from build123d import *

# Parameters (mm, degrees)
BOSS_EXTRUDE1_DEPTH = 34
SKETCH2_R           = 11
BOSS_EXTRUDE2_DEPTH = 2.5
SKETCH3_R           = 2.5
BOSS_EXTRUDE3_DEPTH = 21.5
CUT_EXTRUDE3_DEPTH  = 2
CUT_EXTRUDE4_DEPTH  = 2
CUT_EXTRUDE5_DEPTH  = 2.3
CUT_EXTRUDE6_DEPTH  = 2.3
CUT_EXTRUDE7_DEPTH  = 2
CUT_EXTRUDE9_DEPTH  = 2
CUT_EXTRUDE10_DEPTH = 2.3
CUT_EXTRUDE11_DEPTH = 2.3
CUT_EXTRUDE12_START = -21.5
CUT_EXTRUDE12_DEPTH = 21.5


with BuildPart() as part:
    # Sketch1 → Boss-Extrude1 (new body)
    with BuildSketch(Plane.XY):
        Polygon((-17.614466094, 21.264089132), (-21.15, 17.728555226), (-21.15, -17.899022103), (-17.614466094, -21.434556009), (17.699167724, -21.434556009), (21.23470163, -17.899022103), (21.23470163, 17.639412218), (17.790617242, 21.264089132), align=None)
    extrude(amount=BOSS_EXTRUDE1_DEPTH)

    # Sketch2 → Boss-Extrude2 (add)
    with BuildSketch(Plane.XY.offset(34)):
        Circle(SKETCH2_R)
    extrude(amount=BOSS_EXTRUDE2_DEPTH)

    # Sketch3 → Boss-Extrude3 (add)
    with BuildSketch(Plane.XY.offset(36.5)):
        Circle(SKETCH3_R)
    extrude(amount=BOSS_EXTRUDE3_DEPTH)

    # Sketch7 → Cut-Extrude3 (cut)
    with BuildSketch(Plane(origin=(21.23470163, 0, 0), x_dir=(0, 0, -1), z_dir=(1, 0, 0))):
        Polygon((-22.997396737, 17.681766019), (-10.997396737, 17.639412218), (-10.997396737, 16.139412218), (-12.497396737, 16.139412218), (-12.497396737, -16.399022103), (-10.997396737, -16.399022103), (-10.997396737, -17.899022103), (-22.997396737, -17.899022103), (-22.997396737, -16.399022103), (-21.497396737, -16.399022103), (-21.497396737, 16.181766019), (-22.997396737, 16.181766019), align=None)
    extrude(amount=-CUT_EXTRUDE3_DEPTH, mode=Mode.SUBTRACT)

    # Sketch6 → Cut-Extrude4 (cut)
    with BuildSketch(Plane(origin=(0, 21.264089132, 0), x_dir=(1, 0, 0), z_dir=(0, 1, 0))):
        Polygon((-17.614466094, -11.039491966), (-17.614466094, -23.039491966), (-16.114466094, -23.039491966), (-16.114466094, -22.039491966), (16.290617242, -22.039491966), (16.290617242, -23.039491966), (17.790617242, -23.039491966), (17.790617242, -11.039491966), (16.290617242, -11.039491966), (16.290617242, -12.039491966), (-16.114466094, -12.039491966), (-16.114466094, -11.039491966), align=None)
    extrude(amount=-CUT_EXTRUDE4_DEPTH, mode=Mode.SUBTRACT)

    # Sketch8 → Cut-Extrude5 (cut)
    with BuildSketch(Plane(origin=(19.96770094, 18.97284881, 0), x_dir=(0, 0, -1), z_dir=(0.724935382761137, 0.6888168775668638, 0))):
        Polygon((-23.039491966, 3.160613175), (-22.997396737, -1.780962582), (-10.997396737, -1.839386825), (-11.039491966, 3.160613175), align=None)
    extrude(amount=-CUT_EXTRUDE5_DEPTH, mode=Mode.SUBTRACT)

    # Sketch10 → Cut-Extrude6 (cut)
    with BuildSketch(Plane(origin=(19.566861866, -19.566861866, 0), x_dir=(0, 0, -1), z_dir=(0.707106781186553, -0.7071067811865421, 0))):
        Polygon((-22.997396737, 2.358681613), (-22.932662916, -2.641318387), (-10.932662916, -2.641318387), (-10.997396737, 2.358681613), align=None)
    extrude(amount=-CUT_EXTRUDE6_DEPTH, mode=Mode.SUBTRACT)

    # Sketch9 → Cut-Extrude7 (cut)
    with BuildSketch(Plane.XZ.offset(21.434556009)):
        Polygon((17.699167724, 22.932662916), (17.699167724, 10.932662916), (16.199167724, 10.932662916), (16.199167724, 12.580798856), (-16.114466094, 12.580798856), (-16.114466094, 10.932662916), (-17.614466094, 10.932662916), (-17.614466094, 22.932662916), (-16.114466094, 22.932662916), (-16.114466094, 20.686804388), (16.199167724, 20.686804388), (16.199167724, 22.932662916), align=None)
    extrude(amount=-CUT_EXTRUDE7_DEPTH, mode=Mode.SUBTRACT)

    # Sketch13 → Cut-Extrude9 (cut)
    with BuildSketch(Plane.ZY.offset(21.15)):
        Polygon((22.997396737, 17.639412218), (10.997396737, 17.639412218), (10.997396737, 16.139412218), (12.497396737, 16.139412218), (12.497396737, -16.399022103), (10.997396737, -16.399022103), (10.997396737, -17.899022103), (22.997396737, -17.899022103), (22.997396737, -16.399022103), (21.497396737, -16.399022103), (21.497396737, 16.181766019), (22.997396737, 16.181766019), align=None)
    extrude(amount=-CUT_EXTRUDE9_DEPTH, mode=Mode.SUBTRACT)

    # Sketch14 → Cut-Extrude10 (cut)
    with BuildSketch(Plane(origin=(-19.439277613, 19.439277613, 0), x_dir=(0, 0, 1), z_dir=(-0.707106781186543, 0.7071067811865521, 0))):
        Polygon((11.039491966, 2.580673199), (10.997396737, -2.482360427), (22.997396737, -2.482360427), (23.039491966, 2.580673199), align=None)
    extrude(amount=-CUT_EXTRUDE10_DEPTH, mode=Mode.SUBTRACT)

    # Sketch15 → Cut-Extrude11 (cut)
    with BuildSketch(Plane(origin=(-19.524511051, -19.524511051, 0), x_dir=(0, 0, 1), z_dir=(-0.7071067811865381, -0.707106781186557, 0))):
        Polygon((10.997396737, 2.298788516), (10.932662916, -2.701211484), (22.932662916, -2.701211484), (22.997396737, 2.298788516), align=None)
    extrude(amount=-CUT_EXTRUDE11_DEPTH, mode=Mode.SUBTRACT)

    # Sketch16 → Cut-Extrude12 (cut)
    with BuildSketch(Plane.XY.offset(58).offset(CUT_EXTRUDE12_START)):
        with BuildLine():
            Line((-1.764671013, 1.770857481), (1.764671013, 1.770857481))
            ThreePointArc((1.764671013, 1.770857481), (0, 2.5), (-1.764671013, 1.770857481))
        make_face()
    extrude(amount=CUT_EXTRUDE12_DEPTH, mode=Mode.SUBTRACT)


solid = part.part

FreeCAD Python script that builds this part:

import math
import FreeCAD as App
import Part
import Sketcher

V = App.Vector
Q = App.Units.Quantity

doc = App.newDocument("Part")
params = doc.addObject("Spreadsheet::Sheet", "Params")
for row, (alias, value) in enumerate([
    ("sketch1_length", "5 mm"),
    ("pad1_length", "34 mm"),
    ("sketch2_diameter", "22 mm"),
    ("pad2_length", "2.5 mm"),
    ("sketch3_diameter", "5 mm"),
    ("pad3_length", "21.5 mm"),
    ("sketch4_height", "12 mm"),
    ("sketch4_width", "1.5 mm"),
    ("pocket1_length", "2 mm"),
    ("sketch5_height", "12 mm"),
    ("sketch5_height2", "1 mm"),
    ("sketch5_width", "1.5 mm"),
    ("pocket2_length", "2 mm"),
    ("sketch6_width", "12 mm"),
    ("pocket3_length", "2.3 mm"),
    ("sketch7_width", "12 mm"),
    ("pocket4_length", "2.3 mm"),
    ("sketch8_height", "12 mm"),
    ("sketch8_width", "1.5 mm"),
    ("pocket5_length", "2 mm"),
    ("sketch9_height", "12 mm"),
    ("sketch9_width", "1.5 mm"),
    ("pocket6_length", "2 mm"),
    ("sketch10_width", "12 mm"),
    ("pocket7_length", "2.3 mm"),
    ("sketch11_width", "12 mm"),
    ("pocket8_length", "2.3 mm"),
    ("sketch12_radius", "2.5 mm"),
    ("pocket9_length", "21.5 mm"),
], start=1):
    params.set(f"A{row}", alias)
    params.set(f"B{row}", "=" + value)
    params.setAlias(f"B{row}", alias)

body = doc.addObject("PartDesign::Body", "Body")

# Sketch on XY plane
sketch1 = doc.addObject("Sketcher::SketchObject", "Sketch")
body.addObject(sketch1)
sketch1.AttachmentSupport = (doc.XY_Plane, [""])
sketch1.MapMode = "FlatFace"
sketch1.addGeometry(Part.LineSegment(V(-18, 21, 0), V(-21, 18, 0)), False)
sketch1.addGeometry(Part.LineSegment(V(-21, 18, 0), V(-21, -18, 0)), False)
sketch1.addGeometry(Part.LineSegment(V(-21, -18, 0), V(-18, -21, 0)), False)
sketch1.addGeometry(Part.LineSegment(V(-18, -21, 0), V(18, -21, 0)), False)
sketch1.addGeometry(Part.LineSegment(V(18, -21, 0), V(21, -18, 0)), False)
sketch1.addGeometry(Part.LineSegment(V(21, -18, 0), V(21, 18, 0)), False)
sketch1.addGeometry(Part.LineSegment(V(21, 18, 0), V(18, 21, 0)), False)
sketch1.addGeometry(Part.LineSegment(V(18, 21, 0), V(-18, 21, 0)), False)
sketch1.addConstraint(Sketcher.Constraint("Coincident", 0, 2, 1, 1))
sketch1.addConstraint(Sketcher.Constraint("Coincident", 1, 2, 2, 1))
sketch1.addConstraint(Sketcher.Constraint("Coincident", 2, 2, 3, 1))
sketch1.addConstraint(Sketcher.Constraint("Coincident", 3, 2, 4, 1))
sketch1.addConstraint(Sketcher.Constraint("Coincident", 4, 2, 5, 1))
sketch1.addConstraint(Sketcher.Constraint("Coincident", 5, 2, 6, 1))
sketch1.addConstraint(Sketcher.Constraint("Coincident", 6, 2, 7, 1))
sketch1.addConstraint(Sketcher.Constraint("Coincident", 7, 2, 0, 1))
sketch1.addConstraint(Sketcher.Constraint("Vertical", 1))
sketch1.addConstraint(Sketcher.Constraint("Horizontal", 3))
sketch1.addConstraint(Sketcher.Constraint("Vertical", 5))
sketch1.addConstraint(Sketcher.Constraint("Horizontal", 7))
sketch1.addConstraint(Sketcher.Constraint("Perpendicular", 0, 2))
sketch1.addConstraint(Sketcher.Constraint("Perpendicular", 2, 4))
sketch1.addConstraint(Sketcher.Constraint("Horizontal", 1, 2, 4, 2))
sketch1.addConstraint(Sketcher.Constraint("Vertical", 2, 2, 7, 2))
sketch1.addConstraint(Sketcher.Constraint("Equal", 0, 2))
sketch1.addConstraint(Sketcher.Constraint("Equal", 4, 6))
sketch1.addConstraint(Sketcher.Constraint("Distance", 0, Q("5 mm")))
sketch1.addConstraint(Sketcher.Constraint("DistanceX", 0, 2, -1, 1, Q("21.15 mm")))
sketch1.addConstraint(Sketcher.Constraint("DistanceX", -1, 1, 4, 2, Q("21.234702 mm")))
sketch1.addConstraint(Sketcher.Constraint("DistanceX", 7, 2, 7, 1, Q("35.405083 mm")))
sketch1.addConstraint(Sketcher.Constraint("DistanceY", 1, 2, 1, 1, Q("35.627577 mm")))
sketch1.addConstraint(Sketcher.Constraint("DistanceY", -1, 1, 6, 2, Q("21.264089 mm")))
sketch1.setExpression("Constraints[18]", "Params.sketch1_length")
pad1 = doc.addObject("PartDesign::Pad", "Pad")
body.addObject(pad1)
pad1.Profile = sketch1
pad1.setExpression("Length", "Params.pad1_length")

# Sketch on XY plane
sketch2 = doc.addObject("Sketcher::SketchObject", "Sketch001")
body.addObject(sketch2)
sketch2.AttachmentSupport = (doc.XY_Plane, [""])
sketch2.MapMode = "FlatFace"
sketch2.AttachmentOffset = App.Placement(V(0, 0, 34), App.Rotation())
sketch2.addGeometry(Part.Circle(V(0, 0, 0), V(0, 0, 1), 11), False)
sketch2.addConstraint(Sketcher.Constraint("Coincident", 0, 3, -1, 1))
sketch2.addConstraint(Sketcher.Constraint("Diameter", 0, Q("22 mm")))
sketch2.setExpression("Constraints[1]", "Params.sketch2_diameter")
pad2 = doc.addObject("PartDesign::Pad", "Pad001")
body.addObject(pad2)
pad2.Profile = sketch2
pad2.setExpression("Length", "Params.pad2_length")

# Sketch on XY plane
sketch3 = doc.addObject("Sketcher::SketchObject", "Sketch002")
body.addObject(sketch3)
sketch3.AttachmentSupport = (doc.XY_Plane, [""])
sketch3.MapMode = "FlatFace"
sketch3.AttachmentOffset = App.Placement(V(0, 0, 36.5), App.Rotation())
sketch3.addGeometry(Part.Circle(V(0, 0, 0), V(0, 0, 1), 2.5), False)
sketch3.addConstraint(Sketcher.Constraint("Coincident", 0, 3, -1, 1))
sketch3.addConstraint(Sketcher.Constraint("Diameter", 0, Q("5 mm")))
sketch3.setExpression("Constraints[1]", "Params.sketch3_diameter")
pad3 = doc.addObject("PartDesign::Pad", "Pad002")
body.addObject(pad3)
pad3.Profile = sketch3
pad3.setExpression("Length", "Params.pad3_length")

# Sketch on YZ plane
sketch4 = doc.addObject("Sketcher::SketchObject", "Sketch003")
body.addObject(sketch4)
sketch4.AttachmentSupport = (doc.YZ_Plane, [""])
sketch4.MapMode = "FlatFace"
sketch4.AttachmentOffset = App.Placement(V(0, 0, 21.234702), App.Rotation())
sketch4.addGeometry(Part.LineSegment(V(17.6, 11, 0), V(17.7, 23, 0)), False)
sketch4.addGeometry(Part.LineSegment(V(17.7, 23, 0), V(16.2, 23, 0)), False)
sketch4.addGeometry(Part.LineSegment(V(16.2, 23, 0), V(16.2, 21.5, 0)), False)
sketch4.addGeometry(Part.LineSegment(V(16.2, 21.5, 0), V(-16.4, 21.5, 0)), False)
sketch4.addGeometry(Part.LineSegment(V(-16.4, 21.5, 0), V(-16.4, 23, 0)), False)
sketch4.addGeometry(Part.LineSegment(V(-16.4, 23, 0), V(-17.9, 23, 0)), False)
sketch4.addGeometry(Part.LineSegment(V(-17.9, 23, 0), V(-17.9, 11, 0)), False)
sketch4.addGeometry(Part.LineSegment(V(-17.9, 11, 0), V(-16.4, 11, 0)), False)
sketch4.addGeometry(Part.LineSegment(V(-16.4, 11, 0), V(-16.4, 12.5, 0)), False)
sketch4.addGeometry(Part.LineSegment(V(-16.4, 12.5, 0), V(16.1, 12.5, 0)), False)
sketch4.addGeometry(Part.LineSegment(V(16.1, 12.5, 0), V(16.1, 11, 0)), False)
sketch4.addGeometry(Part.LineSegment(V(16.1, 11, 0), V(17.6, 11, 0)), False)
sketch4.addConstraint(Sketcher.Constraint("Coincident", 0, 2, 1, 1))
sketch4.addConstraint(Sketcher.Constraint("Coincident", 1, 2, 2, 1))
sketch4.addConstraint(Sketcher.Constraint("Coincident", 2, 2, 3, 1))
sketch4.addConstraint(Sketcher.Constraint("Coincident", 3, 2, 4, 1))
sketch4.addConstraint(Sketcher.Constraint("Coincident", 4, 2, 5, 1))
sketch4.addConstraint(Sketcher.Constraint("Coincident", 5, 2, 6, 1))
sketch4.addConstraint(Sketcher.Constraint("Coincident", 6, 2, 7, 1))
sketch4.addConstraint(Sketcher.Constraint("Coincident", 7, 2, 8, 1))
sketch4.addConstraint(Sketcher.Constraint("Coincident", 8, 2, 9, 1))
sketch4.addConstraint(Sketcher.Constraint("Coincident", 9, 2, 10, 1))
sketch4.addConstraint(Sketcher.Constraint("Coincident", 10, 2, 11, 1))
sketch4.addConstraint(Sketcher.Constraint("Coincident", 11, 2, 0, 1))
sketch4.addConstraint(Sketcher.Constraint("Horizontal", 1))
sketch4.addConstraint(Sketcher.Constraint("Vertical", 2))
sketch4.addConstraint(Sketcher.Constraint("Horizontal", 3))
sketch4.addConstraint(Sketcher.Constraint("Vertical", 4))
sketch4.addConstraint(Sketcher.Constraint("Horizontal", 5))
sketch4.addConstraint(Sketcher.Constraint("Vertical", 6))
sketch4.addConstraint(Sketcher.Constraint("Horizontal", 7))
sketch4.addConstraint(Sketcher.Constraint("Vertical", 8))
sketch4.addConstraint(Sketcher.Constraint("Horizontal", 9))
sketch4.addConstraint(Sketcher.Constraint("Vertical", 10))
sketch4.addConstraint(Sketcher.Constraint("Horizontal", 11))
sketch4.addConstraint(Sketcher.Constraint("Horizontal", 1, 2, 4, 2))
sketch4.addConstraint(Sketcher.Constraint("Horizontal", 7, 2, 10, 2))
sketch4.addConstraint(Sketcher.Constraint("Vertical", 4, 2, 7, 2))
sketch4.addConstraint(Sketcher.Constraint("Equal", 1, 5))
sketch4.addConstraint(Sketcher.Constraint("Equal", 7, 11))
sketch4.addConstraint(Sketcher.Constraint("Equal", 11, 2))
sketch4.addConstraint(Sketcher.Constraint("Equal", 4, 8))
sketch4.addConstraint(Sketcher.Constraint("DistanceY", 6, 2, 6, 1, Q("12 mm")))
sketch4.addConstraint(Sketcher.Constraint("DistanceX", 1, 2, 1, 1, Q("1.5 mm")))
sketch4.addConstraint(Sketcher.Constraint("DistanceX", 3, 2, 3, 1, Q("32.580788 mm")))
sketch4.addConstraint(Sketcher.Constraint("DistanceX", 9, 1, 9, 2, Q("32.538434 mm")))
sketch4.addConstraint(Sketcher.Constraint("DistanceX", -1, 1, 0, 2, Q("17.681766 mm")))
sketch4.addConstraint(Sketcher.Constraint("DistanceY", -1, 1, 0, 2, Q("22.997397 mm")))
sketch4.setExpression("Constraints[30]", "Params.sketch4_height")
sketch4.setExpression("Constraints[31]", "Params.sketch4_width")
pocket1 = doc.addObject("PartDesign::Pocket", "Pocket")
body.addObject(pocket1)
pocket1.Profile = sketch4
pocket1.setExpression("Length", "Params.pocket1_length")

# Sketch on XZ plane
sketch5 = doc.addObject("Sketcher::SketchObject", "Sketch004")
body.addObject(sketch5)
sketch5.AttachmentSupport = (doc.XZ_Plane, [""])
sketch5.MapMode = "FlatFace"
sketch5.AttachmentOffset = App.Placement(V(0, 0, -21.264089), App.Rotation())
sketch5.addGeometry(Part.LineSegment(V(-17.6, 11, 0), V(-17.6, 23, 0)), False)
sketch5.addGeometry(Part.LineSegment(V(-17.6, 23, 0), V(-16.1, 23, 0)), False)
sketch5.addGeometry(Part.LineSegment(V(-16.1, 23, 0), V(-16.1, 22, 0)), False)
sketch5.addGeometry(Part.LineSegment(V(-16.1, 22, 0), V(16.3, 22, 0)), False)
sketch5.addGeometry(Part.LineSegment(V(16.3, 22, 0), V(16.3, 23, 0)), False)
sketch5.addGeometry(Part.LineSegment(V(16.3, 23, 0), V(17.8, 23, 0)), False)
sketch5.addGeometry(Part.LineSegment(V(17.8, 23, 0), V(17.8, 11, 0)), False)
sketch5.addGeometry(Part.LineSegment(V(17.8, 11, 0), V(16.3, 11, 0)), False)
sketch5.addGeometry(Part.LineSegment(V(16.3, 11, 0), V(16.3, 12, 0)), False)
sketch5.addGeometry(Part.LineSegment(V(16.3, 12, 0), V(-16.1, 12, 0)), False)
sketch5.addGeometry(Part.LineSegment(V(-16.1, 12, 0), V(-16.1, 11, 0)), False)
sketch5.addGeometry(Part.LineSegment(V(-16.1, 11, 0), V(-17.6, 11, 0)), False)
sketch5.addConstraint(Sketcher.Constraint("Coincident", 0, 2, 1, 1))
sketch5.addConstraint(Sketcher.Constraint("Coincident", 1, 2, 2, 1))
sketch5.addConstraint(Sketcher.Constraint("Coincident", 2, 2, 3, 1))
sketch5.addConstraint(Sketcher.Constraint("Coincident", 3, 2, 4, 1))
sketch5.addConstraint(Sketcher.Constraint("Coincident", 4, 2, 5, 1))
sketch5.addConstraint(Sketcher.Constraint("Coincident", 5, 2, 6, 1))
sketch5.addConstraint(Sketcher.Constraint("Coincident", 6, 2, 7, 1))
sketch5.addConstraint(Sketcher.Constraint("Coincident", 7, 2, 8, 1))
sketch5.addConstraint(Sketcher.Constraint("Coincident", 8, 2, 9, 1))
sketch5.addConstraint(Sketcher.Constraint("Coincident", 9, 2, 10, 1))
sketch5.addConstraint(Sketcher.Constraint("Coincident", 10, 2, 11, 1))
sketch5.addConstraint(Sketcher.Constraint("Coincident", 11, 2, 0, 1))
sketch5.addConstraint(Sketcher.Constraint("Vertical", 0))
sketch5.addConstraint(Sketcher.Constraint("Horizontal", 1))
sketch5.addConstraint(Sketcher.Constraint("Vertical", 2))
sketch5.addConstraint(Sketcher.Constraint("Horizontal", 3))
sketch5.addConstraint(Sketcher.Constraint("Vertical", 4))
sketch5.addConstraint(Sketcher.Constraint("Horizontal", 5))
sketch5.addConstraint(Sketcher.Constraint("Vertical", 6))
sketch5.addConstraint(Sketcher.Constraint("Horizontal", 7))
sketch5.addConstraint(Sketcher.Constraint("Vertical", 8))
sketch5.addConstraint(Sketcher.Constraint("Horizontal", 9))
sketch5.addConstraint(Sketcher.Constraint("Vertical", 10))
sketch5.addConstraint(Sketcher.Constraint("Horizontal", 11))
sketch5.addConstraint(Sketcher.Constraint("Horizontal", 1, 2, 4, 2))
sketch5.addConstraint(Sketcher.Constraint("Horizontal", 7, 2, 10, 2))
sketch5.addConstraint(Sketcher.Constraint("Vertical", 4, 2, 7, 2))
sketch5.addConstraint(Sketcher.Constraint("Vertical", 2, 2, 9, 2))
sketch5.addConstraint(Sketcher.Constraint("Equal", 1, 5))
sketch5.addConstraint(Sketcher.Constraint("Equal", 4, 8))
sketch5.addConstraint(Sketcher.Constraint("DistanceY", 0, 1, 0, 2, Q("12 mm")))
sketch5.addConstraint(Sketcher.Constraint("DistanceY", 2, 2, 2, 1, Q("1 mm")))
sketch5.addConstraint(Sketcher.Constraint("DistanceX", 1, 1, 1, 2, Q("1.5 mm")))
sketch5.addConstraint(Sketcher.Constraint("DistanceX", 3, 1, 3, 2, Q("32.405083 mm")))
sketch5.addConstraint(Sketcher.Constraint("DistanceY", -1, 1, 0, 2, Q("23.039492 mm")))
sketch5.addConstraint(Sketcher.Constraint("DistanceX", 0, 2, -1, 1, Q("17.614466 mm")))
sketch5.setExpression("Constraints[30]", "Params.sketch5_height")
sketch5.setExpression("Constraints[31]", "Params.sketch5_height2")
sketch5.setExpression("Constraints[32]", "Params.sketch5_width")
pocket2 = doc.addObject("PartDesign::Pocket", "Pocket001")
body.addObject(pocket2)
pocket2.Profile = sketch5
pocket2.setExpression("Length", "Params.pocket2_length")
pocket2.Reversed = True

# Sketch on an angled plane
sketch6 = doc.addObject("Sketcher::SketchObject", "Sketch005")
body.addObject(sketch6)
sketch6.Placement = App.Placement(V(19.967701, 18.972849, 0), App.Rotation(V(0, 0, -1), V(-0.688816878, 0.724935383, 0), V(0.724935383, 0.688816878, 0), "ZXY"))
sketch6.addGeometry(Part.LineSegment(V(-23.039492, 3.160613, 0), V(-22.997397, -1.780963, 0)), False)
sketch6.addGeometry(Part.LineSegment(V(-22.997397, -1.780963, 0), V(-10.997397, -1.839387, 0)), False)
sketch6.addGeometry(Part.LineSegment(V(-10.997397, -1.839387, 0), V(-11.039492, 3.160613, 0)), False)
sketch6.addGeometry(Part.LineSegment(V(-11.039492, 3.160613, 0), V(-23.039492, 3.160613, 0)), False)
sketch6.addConstraint(Sketcher.Constraint("Coincident", 0, 2, 1, 1))
sketch6.addConstraint(Sketcher.Constraint("Coincident", 1, 2, 2, 1))
sketch6.addConstraint(Sketcher.Constraint("Coincident", 2, 2, 3, 1))
sketch6.addConstraint(Sketcher.Constraint("Coincident", 3, 2, 0, 1))
sketch6.addConstraint(Sketcher.Constraint("Horizontal", 3))
sketch6.addConstraint(Sketcher.Constraint("DistanceX", 3, 2, 3, 1, Q("12 mm")))
sketch6.addConstraint(Sketcher.Constraint("DistanceX", 0, 2, 1, 2, Q("12 mm")))
sketch6.addConstraint(Sketcher.Constraint("DistanceY", 1, 2, 2, 2, Q("5 mm")))
sketch6.addConstraint(Sketcher.Constraint("DistanceX", 2, 2, -1, 1, Q("11.039492 mm")))
sketch6.addConstraint(Sketcher.Constraint("Distance", 0, Q("4.941755 mm")))
sketch6.addConstraint(Sketcher.Constraint("Distance", 2, Q("5.000177 mm")))
sketch6.addConstraint(Sketcher.Constraint("DistanceY", 0, 2, -1, 1, Q("1.780963 mm")))
sketch6.setExpression("Constraints[5]", "Params.sketch6_width")
pocket3 = doc.addObject("PartDesign::Pocket", "Pocket002")
body.addObject(pocket3)
pocket3.Profile = sketch6
pocket3.setExpression("Length", "Params.pocket3_length")

# Sketch on an angled plane
sketch7 = doc.addObject("Sketcher::SketchObject", "Sketch006")
body.addObject(sketch7)
sketch7.Placement = App.Placement(V(19.566862, -19.566862, 0), App.Rotation(V(0, 0, -1), V(0.707106781, 0.707106781, 0), V(0.707106781, -0.707106781, 0), "ZXY"))
sketch7.addGeometry(Part.LineSegment(V(-22.997397, 2.358682, 0), V(-22.932663, -2.641318, 0)), False)
sketch7.addGeometry(Part.LineSegment(V(-22.932663, -2.641318, 0), V(-10.932663, -2.641318, 0)), False)
sketch7.addGeometry(Part.LineSegment(V(-10.932663, -2.641318, 0), V(-10.997397, 2.358682, 0)), False)
sketch7.addGeometry(Part.LineSegment(V(-10.997397, 2.358682, 0), V(-22.997397, 2.358682, 0)), False)
sketch7.addConstraint(Sketcher.Constraint("Coincident", 0, 2, 1, 1))
sketch7.addConstraint(Sketcher.Constraint("Coincident", 1, 2, 2, 1))
sketch7.addConstraint(Sketcher.Constraint("Coincident", 2, 2, 3, 1))
sketch7.addConstraint(Sketcher.Constraint("Coincident", 3, 2, 0, 1))
sketch7.addConstraint(Sketcher.Constraint("Horizontal", 1))
sketch7.addConstraint(Sketcher.Constraint("Horizontal", 3))
sketch7.addConstraint(Sketcher.Constraint("Parallel", 0, 2))
sketch7.addConstraint(Sketcher.Constraint("DistanceX", 1, 1, 1, 2, Q("12 mm")))
sketch7.addConstraint(Sketcher.Constraint("DistanceY", 1, 2, 2, 2, Q("5 mm")))
sketch7.addConstraint(Sketcher.Constraint("Distance", 0, Q("5.000419 mm")))
sketch7.addConstraint(Sketcher.Constraint("DistanceY", 0, 2, -1, 1, Q("2.641318 mm")))
sketch7.addConstraint(Sketcher.Constraint("DistanceX", 0, 2, -1, 1, Q("22.932663 mm")))
sketch7.setExpression("Constraints[7]", "Params.sketch7_width")
pocket4 = doc.addObject("PartDesign::Pocket", "Pocket003")
body.addObject(pocket4)
pocket4.Profile = sketch7
pocket4.setExpression("Length", "Params.pocket4_length")

# Sketch on XZ plane
sketch8 = doc.addObject("Sketcher::SketchObject", "Sketch007")
body.addObject(sketch8)
sketch8.AttachmentSupport = (doc.XZ_Plane, [""])
sketch8.MapMode = "FlatFace"
sketch8.AttachmentOffset = App.Placement(V(0, 0, 21.434556), App.Rotation())
sketch8.addGeometry(Part.LineSegment(V(17.7, 10.9, 0), V(17.7, 22.9, 0)), False)
sketch8.addGeometry(Part.LineSegment(V(17.7, 22.9, 0), V(16.2, 22.9, 0)), False)
sketch8.addGeometry(Part.LineSegment(V(16.2, 22.9, 0), V(16.2, 20.7, 0)), False)
sketch8.addGeometry(Part.LineSegment(V(16.2, 20.7, 0), V(-16.1, 20.7, 0)), False)
sketch8.addGeometry(Part.LineSegment(V(-16.1, 20.7, 0), V(-16.1, 22.9, 0)), False)
sketch8.addGeometry(Part.LineSegment(V(-16.1, 22.9, 0), V(-17.6, 22.9, 0)), False)
sketch8.addGeometry(Part.LineSegment(V(-17.6, 22.9, 0), V(-17.6, 10.9, 0)), False)
sketch8.addGeometry(Part.LineSegment(V(-17.6, 10.9, 0), V(-16.1, 10.9, 0)), False)
sketch8.addGeometry(Part.LineSegment(V(-16.1, 10.9, 0), V(-16.1, 12.6, 0)), False)
sketch8.addGeometry(Part.LineSegment(V(-16.1, 12.6, 0), V(16.2, 12.6, 0)), False)
sketch8.addGeometry(Part.LineSegment(V(16.2, 12.6, 0), V(16.2, 10.9, 0)), False)
sketch8.addGeometry(Part.LineSegment(V(16.2, 10.9, 0), V(17.7, 10.9, 0)), False)
sketch8.addConstraint(Sketcher.Constraint("Coincident", 0, 2, 1, 1))
sketch8.addConstraint(Sketcher.Constraint("Coincident", 1, 2, 2, 1))
sketch8.addConstraint(Sketcher.Constraint("Coincident", 2, 2, 3, 1))
sketch8.addConstraint(Sketcher.Constraint("Coincident", 3, 2, 4, 1))
sketch8.addConstraint(Sketcher.Constraint("Coincident", 4, 2, 5, 1))
sketch8.addConstraint(Sketcher.Constraint("Coincident", 5, 2, 6, 1))
sketch8.addConstraint(Sketcher.Constraint("Coincident", 6, 2, 7, 1))
sketch8.addConstraint(Sketcher.Constraint("Coincident", 7, 2, 8, 1))
sketch8.addConstraint(Sketcher.Constraint("Coincident", 8, 2, 9, 1))
sketch8.addConstraint(Sketcher.Constraint("Coincident", 9, 2, 10, 1))
sketch8.addConstraint(Sketcher.Constraint("Coincident", 10, 2, 11, 1))
sketch8.addConstraint(Sketcher.Constraint("Coincident", 11, 2, 0, 1))
sketch8.addConstraint(Sketcher.Constraint("Vertical", 0))
sketch8.addConstraint(Sketcher.Constraint("Horizontal", 1))
sketch8.addConstraint(Sketcher.Constraint("Vertical", 2))
sketch8.addConstraint(Sketcher.Constraint("Horizontal", 3))
sketch8.addConstraint(Sketcher.Constraint("Vertical", 4))
sketch8.addConstraint(Sketcher.Constraint("Horizontal", 5))
sketch8.addConstraint(Sketcher.Constraint("Vertical", 6))
sketch8.addConstraint(Sketcher.Constraint("Horizontal", 7))
sketch8.addConstraint(Sketcher.Constraint("Vertical", 8))
sketch8.addConstraint(Sketcher.Constraint("Horizontal", 9))
sketch8.addConstraint(Sketcher.Constraint("Vertical", 10))
sketch8.addConstraint(Sketcher.Constraint("Horizontal", 11))
sketch8.addConstraint(Sketcher.Constraint("Horizontal", 1, 2, 4, 2))
sketch8.addConstraint(Sketcher.Constraint("Horizontal", 7, 2, 10, 2))
sketch8.addConstraint(Sketcher.Constraint("Vertical", 4, 2, 7, 2))
sketch8.addConstraint(Sketcher.Constraint("Vertical", 2, 2, 9, 2))
sketch8.addConstraint(Sketcher.Constraint("Equal", 1, 5))
sketch8.addConstraint(Sketcher.Constraint("DistanceY", 0, 1, 0, 2, Q("12 mm")))
sketch8.addConstraint(Sketcher.Constraint("DistanceX", 1, 2, 1, 1, Q("1.5 mm")))
sketch8.addConstraint(Sketcher.Constraint("DistanceY", 2, 2, 2, 1, Q("2.245859 mm")))
sketch8.addConstraint(Sketcher.Constraint("DistanceY", -1, 1, 8, 2, Q("12.580799 mm")))
sketch8.addConstraint(Sketcher.Constraint("DistanceX", 3, 2, 3, 1, Q("32.313634 mm")))
sketch8.addConstraint(Sketcher.Constraint("DistanceY", 8, 1, 8, 2, Q("1.648136 mm")))
sketch8.addConstraint(Sketcher.Constraint("DistanceX", -1, 1, 0, 2, Q("17.699168 mm")))
sketch8.setExpression("Constraints[29]", "Params.sketch8_height")
sketch8.setExpression("Constraints[30]", "Params.sketch8_width")
pocket5 = doc.addObject("PartDesign::Pocket", "Pocket004")
body.addObject(pocket5)
pocket5.Profile = sketch8
pocket5.setExpression("Length", "Params.pocket5_length")

# Sketch on YZ plane
sketch9 = doc.addObject("Sketcher::SketchObject", "Sketch008")
body.addObject(sketch9)
sketch9.AttachmentSupport = (doc.YZ_Plane, [""])
sketch9.MapMode = "FlatFace"
sketch9.AttachmentOffset = App.Placement(V(0, 0, -21.15), App.Rotation())
sketch9.addGeometry(Part.LineSegment(V(17.6, 23, 0), V(17.6, 11, 0)), False)
sketch9.addGeometry(Part.LineSegment(V(17.6, 11, 0), V(16.1, 11, 0)), False)
sketch9.addGeometry(Part.LineSegment(V(16.1, 11, 0), V(16.1, 12.5, 0)), False)
sketch9.addGeometry(Part.LineSegment(V(16.1, 12.5, 0), V(-16.4, 12.5, 0)), False)
sketch9.addGeometry(Part.LineSegment(V(-16.4, 12.5, 0), V(-16.4, 11, 0)), False)
sketch9.addGeometry(Part.LineSegment(V(-16.4, 11, 0), V(-17.9, 11, 0)), False)
sketch9.addGeometry(Part.LineSegment(V(-17.9, 11, 0), V(-17.9, 23, 0)), False)
sketch9.addGeometry(Part.LineSegment(V(-17.9, 23, 0), V(-16.4, 23, 0)), False)
sketch9.addGeometry(Part.LineSegment(V(-16.4, 23, 0), V(-16.4, 21.5, 0)), False)
sketch9.addGeometry(Part.LineSegment(V(-16.4, 21.5, 0), V(16.2, 21.5, 0)), False)
sketch9.addGeometry(Part.LineSegment(V(16.2, 21.5, 0), V(16.2, 23, 0)), False)
sketch9.addGeometry(Part.LineSegment(V(16.2, 23, 0), V(17.6, 23, 0)), False)
sketch9.addConstraint(Sketcher.Constraint("Coincident", 0, 2, 1, 1))
sketch9.addConstraint(Sketcher.Constraint("Coincident", 1, 2, 2, 1))
sketch9.addConstraint(Sketcher.Constraint("Coincident", 2, 2, 3, 1))
sketch9.addConstraint(Sketcher.Constraint("Coincident", 3, 2, 4, 1))
sketch9.addConstraint(Sketcher.Constraint("Coincident", 4, 2, 5, 1))
sketch9.addConstraint(Sketcher.Constraint("Coincident", 5, 2, 6, 1))
sketch9.addConstraint(Sketcher.Constraint("Coincident", 6, 2, 7, 1))
sketch9.addConstraint(Sketcher.Constraint("Coincident", 7, 2, 8, 1))
sketch9.addConstraint(Sketcher.Constraint("Coincident", 8, 2, 9, 1))
sketch9.addConstraint(Sketcher.Constraint("Coincident", 9, 2, 10, 1))
sketch9.addConstraint(Sketcher.Constraint("Coincident", 10, 2, 11, 1))
sketch9.addConstraint(Sketcher.Constraint("Coincident", 11, 2, 0, 1))
sketch9.addConstraint(Sketcher.Constraint("Vertical", 0))
sketch9.addConstraint(Sketcher.Constraint("Horizontal", 1))
sketch9.addConstraint(Sketcher.Constraint("Vertical", 2))
sketch9.addConstraint(Sketcher.Constraint("Horizontal", 3))
sketch9.addConstraint(Sketcher.Constraint("Vertical", 4))
sketch9.addConstraint(Sketcher.Constraint("Horizontal", 5))
sketch9.addConstraint(Sketcher.Constraint("Vertical", 6))
sketch9.addConstraint(Sketcher.Constraint("Horizontal", 7))
sketch9.addConstraint(Sketcher.Constraint("Vertical", 8))
sketch9.addConstraint(Sketcher.Constraint("Horizontal", 9))
sketch9.addConstraint(Sketcher.Constraint("Vertical", 10))
sketch9.addConstraint(Sketcher.Constraint("Horizontal", 11))
sketch9.addConstraint(Sketcher.Constraint("Horizontal", 1, 2, 4, 2))
sketch9.addConstraint(Sketcher.Constraint("Horizontal", 7, 2, 10, 2))
sketch9.addConstraint(Sketcher.Constraint("Vertical", 4, 2, 7, 2))
sketch9.addConstraint(Sketcher.Constraint("Equal", 1, 5))
sketch9.addConstraint(Sketcher.Constraint("Equal", 7, 2))
sketch9.addConstraint(Sketcher.Constraint("Equal", 4, 8))
sketch9.addConstraint(Sketcher.Constraint("DistanceY", 0, 2, 0, 1, Q("12 mm")))
sketch9.addConstraint(Sketcher.Constraint("DistanceX", 1, 2, 1, 1, Q("1.5 mm")))
sketch9.addConstraint(Sketcher.Constraint("DistanceX", 9, 1, 9, 2, Q("32.580788 mm")))
sketch9.addConstraint(Sketcher.Constraint("DistanceX", 3, 2, 3, 1, Q("32.538434 mm")))
sketch9.addConstraint(Sketcher.Constraint("DistanceX", -1, 1, 0, 2, Q("17.639412 mm")))
sketch9.addConstraint(Sketcher.Constraint("DistanceY", -1, 1, 0, 2, Q("10.997397 mm")))
sketch9.setExpression("Constraints[30]", "Params.sketch9_height")
sketch9.setExpression("Constraints[31]", "Params.sketch9_width")
pocket6 = doc.addObject("PartDesign::Pocket", "Pocket005")
body.addObject(pocket6)
pocket6.Profile = sketch9
pocket6.setExpression("Length", "Params.pocket6_length")
pocket6.Reversed = True

# Sketch on an angled plane
sketch10 = doc.addObject("Sketcher::SketchObject", "Sketch009")
body.addObject(sketch10)
sketch10.Placement = App.Placement(V(-19.439278, 19.439278, 0), App.Rotation(V(0, 0, 1), V(0.707106781, 0.707106781, 0), V(-0.707106781, 0.707106781, 0), "ZXY"))
sketch10.addGeometry(Part.LineSegment(V(11, 3, 0), V(11, -2, 0)), False)
sketch10.addGeometry(Part.LineSegment(V(11, -2, 0), V(23, -2, 0)), False)
sketch10.addGeometry(Part.LineSegment(V(23, -2, 0), V(23, 3, 0)), False)
sketch10.addGeometry(Part.LineSegment(V(23, 3, 0), V(11, 3, 0)), False)
sketch10.addConstraint(Sketcher.Constraint("Coincident", 0, 2, 1, 1))
sketch10.addConstraint(Sketcher.Constraint("Coincident", 1, 2, 2, 1))
sketch10.addConstraint(Sketcher.Constraint("Coincident", 2, 2, 3, 1))
sketch10.addConstraint(Sketcher.Constraint("Coincident", 3, 2, 0, 1))
sketch10.addConstraint(Sketcher.Constraint("Horizontal", 1))
sketch10.addConstraint(Sketcher.Constraint("Horizontal", 3))
sketch10.addConstraint(Sketcher.Constraint("Parallel", 0, 2))
sketch10.addConstraint(Sketcher.Constraint("DistanceX", 1, 1, 1, 2, Q("12 mm")))
sketch10.addConstraint(Sketcher.Constraint("Distance", 0, Q("5.063209 mm")))
sketch10.addConstraint(Sketcher.Constraint("DistanceY", 0, 2, -1, 1, Q("2.48236 mm")))
sketch10.addConstraint(Sketcher.Constraint("DistanceX", -1, 1, 2, 2, Q("23.039492 mm")))
sketch10.addConstraint(Sketcher.Constraint("DistanceX", -1, 1, 0, 2, Q("10.997397 mm")))
sketch10.setExpression("Constraints[7]", "Params.sketch10_width")
pocket7 = doc.addObject("PartDesign::Pocket", "Pocket006")
body.addObject(pocket7)
pocket7.Profile = sketch10
pocket7.setExpression("Length", "Params.pocket7_length")

# Sketch on an angled plane
sketch11 = doc.addObject("Sketcher::SketchObject", "Sketch010")
body.addObject(sketch11)
sketch11.Placement = App.Placement(V(-19.524511, -19.524511, 0), App.Rotation(V(0, 0, 1), V(-0.707106781, 0.707106781, 0), V(-0.707106781, -0.707106781, 0), "ZXY"))
sketch11.addGeometry(Part.LineSegment(V(10.997397, 2.298789, 0), V(10.932663, -2.701211, 0)), False)
sketch11.addGeometry(Part.LineSegment(V(10.932663, -2.701211, 0), V(22.932663, -2.701211, 0)), False)
sketch11.addGeometry(Part.LineSegment(V(22.932663, -2.701211, 0), V(22.997397, 2.298789, 0)), False)
sketch11.addGeometry(Part.LineSegment(V(22.997397, 2.298789, 0), V(10.997397, 2.298789, 0)), False)
sketch11.addConstraint(Sketcher.Constraint("Coincident", 0, 2, 1, 1))
sketch11.addConstraint(Sketcher.Constraint("Coincident", 1, 2, 2, 1))
sketch11.addConstraint(Sketcher.Constraint("Coincident", 2, 2, 3, 1))
sketch11.addConstraint(Sketcher.Constraint("Coincident", 3, 2, 0, 1))
sketch11.addConstraint(Sketcher.Constraint("Horizontal", 1))
sketch11.addConstraint(Sketcher.Constraint("Horizontal", 3))
sketch11.addConstraint(Sketcher.Constraint("Parallel", 0, 2))
sketch11.addConstraint(Sketcher.Constraint("DistanceX", 1, 1, 1, 2, Q("12 mm")))
sketch11.addConstraint(Sketcher.Constraint("DistanceY", 1, 2, 2, 2, Q("5 mm")))
sketch11.addConstraint(Sketcher.Constraint("Distance", 0, Q("5.000419 mm")))
sketch11.addConstraint(Sketcher.Constraint("DistanceY", 0, 2, -1, 1, Q("2.701211 mm")))
sketch11.addConstraint(Sketcher.Constraint("DistanceX", -1, 1, 0, 2, Q("10.932663 mm")))
sketch11.setExpression("Constraints[7]", "Params.sketch11_width")
pocket8 = doc.addObject("PartDesign::Pocket", "Pocket007")
body.addObject(pocket8)
pocket8.Profile = sketch11
pocket8.setExpression("Length", "Params.pocket8_length")

# Sketch on XY plane
sketch12 = doc.addObject("Sketcher::SketchObject", "Sketch011")
body.addObject(sketch12)
sketch12.AttachmentSupport = (doc.XY_Plane, [""])
sketch12.MapMode = "FlatFace"
sketch12.AttachmentOffset = App.Placement(V(0, 0, 36.5), App.Rotation())
sketch12.addGeometry(Part.LineSegment(V(-1.8, 1.8, 0), V(1.8, 1.8, 0)), False)
sketch12.addGeometry(Part.ArcOfCircle(Part.Circle(V(0, 0, 0), V(0, 0, 1), 2.5), math.radians(45), math.radians(135)), False)
sketch12.addConstraint(Sketcher.Constraint("Coincident", 0, 1, 1, 2))
sketch12.addConstraint(Sketcher.Constraint("Coincident", 1, 1, 0, 2))
sketch12.addConstraint(Sketcher.Constraint("Horizontal", 0))
sketch12.addConstraint(Sketcher.Constraint("Coincident", 1, 3, -1, 1))
sketch12.addConstraint(Sketcher.Constraint("Radius", 1, Q("2.5 mm")))
sketch12.addConstraint(Sketcher.Constraint("DistanceX", 0, 1, 0, 2, Q("3.529342 mm")))
sketch12.setExpression("Constraints[4]", "Params.sketch12_radius")
pocket9 = doc.addObject("PartDesign::Pocket", "Pocket008")
body.addObject(pocket9)
pocket9.Profile = sketch12
pocket9.setExpression("Length", "Params.pocket9_length")
pocket9.Reversed = True

doc.recompute()
